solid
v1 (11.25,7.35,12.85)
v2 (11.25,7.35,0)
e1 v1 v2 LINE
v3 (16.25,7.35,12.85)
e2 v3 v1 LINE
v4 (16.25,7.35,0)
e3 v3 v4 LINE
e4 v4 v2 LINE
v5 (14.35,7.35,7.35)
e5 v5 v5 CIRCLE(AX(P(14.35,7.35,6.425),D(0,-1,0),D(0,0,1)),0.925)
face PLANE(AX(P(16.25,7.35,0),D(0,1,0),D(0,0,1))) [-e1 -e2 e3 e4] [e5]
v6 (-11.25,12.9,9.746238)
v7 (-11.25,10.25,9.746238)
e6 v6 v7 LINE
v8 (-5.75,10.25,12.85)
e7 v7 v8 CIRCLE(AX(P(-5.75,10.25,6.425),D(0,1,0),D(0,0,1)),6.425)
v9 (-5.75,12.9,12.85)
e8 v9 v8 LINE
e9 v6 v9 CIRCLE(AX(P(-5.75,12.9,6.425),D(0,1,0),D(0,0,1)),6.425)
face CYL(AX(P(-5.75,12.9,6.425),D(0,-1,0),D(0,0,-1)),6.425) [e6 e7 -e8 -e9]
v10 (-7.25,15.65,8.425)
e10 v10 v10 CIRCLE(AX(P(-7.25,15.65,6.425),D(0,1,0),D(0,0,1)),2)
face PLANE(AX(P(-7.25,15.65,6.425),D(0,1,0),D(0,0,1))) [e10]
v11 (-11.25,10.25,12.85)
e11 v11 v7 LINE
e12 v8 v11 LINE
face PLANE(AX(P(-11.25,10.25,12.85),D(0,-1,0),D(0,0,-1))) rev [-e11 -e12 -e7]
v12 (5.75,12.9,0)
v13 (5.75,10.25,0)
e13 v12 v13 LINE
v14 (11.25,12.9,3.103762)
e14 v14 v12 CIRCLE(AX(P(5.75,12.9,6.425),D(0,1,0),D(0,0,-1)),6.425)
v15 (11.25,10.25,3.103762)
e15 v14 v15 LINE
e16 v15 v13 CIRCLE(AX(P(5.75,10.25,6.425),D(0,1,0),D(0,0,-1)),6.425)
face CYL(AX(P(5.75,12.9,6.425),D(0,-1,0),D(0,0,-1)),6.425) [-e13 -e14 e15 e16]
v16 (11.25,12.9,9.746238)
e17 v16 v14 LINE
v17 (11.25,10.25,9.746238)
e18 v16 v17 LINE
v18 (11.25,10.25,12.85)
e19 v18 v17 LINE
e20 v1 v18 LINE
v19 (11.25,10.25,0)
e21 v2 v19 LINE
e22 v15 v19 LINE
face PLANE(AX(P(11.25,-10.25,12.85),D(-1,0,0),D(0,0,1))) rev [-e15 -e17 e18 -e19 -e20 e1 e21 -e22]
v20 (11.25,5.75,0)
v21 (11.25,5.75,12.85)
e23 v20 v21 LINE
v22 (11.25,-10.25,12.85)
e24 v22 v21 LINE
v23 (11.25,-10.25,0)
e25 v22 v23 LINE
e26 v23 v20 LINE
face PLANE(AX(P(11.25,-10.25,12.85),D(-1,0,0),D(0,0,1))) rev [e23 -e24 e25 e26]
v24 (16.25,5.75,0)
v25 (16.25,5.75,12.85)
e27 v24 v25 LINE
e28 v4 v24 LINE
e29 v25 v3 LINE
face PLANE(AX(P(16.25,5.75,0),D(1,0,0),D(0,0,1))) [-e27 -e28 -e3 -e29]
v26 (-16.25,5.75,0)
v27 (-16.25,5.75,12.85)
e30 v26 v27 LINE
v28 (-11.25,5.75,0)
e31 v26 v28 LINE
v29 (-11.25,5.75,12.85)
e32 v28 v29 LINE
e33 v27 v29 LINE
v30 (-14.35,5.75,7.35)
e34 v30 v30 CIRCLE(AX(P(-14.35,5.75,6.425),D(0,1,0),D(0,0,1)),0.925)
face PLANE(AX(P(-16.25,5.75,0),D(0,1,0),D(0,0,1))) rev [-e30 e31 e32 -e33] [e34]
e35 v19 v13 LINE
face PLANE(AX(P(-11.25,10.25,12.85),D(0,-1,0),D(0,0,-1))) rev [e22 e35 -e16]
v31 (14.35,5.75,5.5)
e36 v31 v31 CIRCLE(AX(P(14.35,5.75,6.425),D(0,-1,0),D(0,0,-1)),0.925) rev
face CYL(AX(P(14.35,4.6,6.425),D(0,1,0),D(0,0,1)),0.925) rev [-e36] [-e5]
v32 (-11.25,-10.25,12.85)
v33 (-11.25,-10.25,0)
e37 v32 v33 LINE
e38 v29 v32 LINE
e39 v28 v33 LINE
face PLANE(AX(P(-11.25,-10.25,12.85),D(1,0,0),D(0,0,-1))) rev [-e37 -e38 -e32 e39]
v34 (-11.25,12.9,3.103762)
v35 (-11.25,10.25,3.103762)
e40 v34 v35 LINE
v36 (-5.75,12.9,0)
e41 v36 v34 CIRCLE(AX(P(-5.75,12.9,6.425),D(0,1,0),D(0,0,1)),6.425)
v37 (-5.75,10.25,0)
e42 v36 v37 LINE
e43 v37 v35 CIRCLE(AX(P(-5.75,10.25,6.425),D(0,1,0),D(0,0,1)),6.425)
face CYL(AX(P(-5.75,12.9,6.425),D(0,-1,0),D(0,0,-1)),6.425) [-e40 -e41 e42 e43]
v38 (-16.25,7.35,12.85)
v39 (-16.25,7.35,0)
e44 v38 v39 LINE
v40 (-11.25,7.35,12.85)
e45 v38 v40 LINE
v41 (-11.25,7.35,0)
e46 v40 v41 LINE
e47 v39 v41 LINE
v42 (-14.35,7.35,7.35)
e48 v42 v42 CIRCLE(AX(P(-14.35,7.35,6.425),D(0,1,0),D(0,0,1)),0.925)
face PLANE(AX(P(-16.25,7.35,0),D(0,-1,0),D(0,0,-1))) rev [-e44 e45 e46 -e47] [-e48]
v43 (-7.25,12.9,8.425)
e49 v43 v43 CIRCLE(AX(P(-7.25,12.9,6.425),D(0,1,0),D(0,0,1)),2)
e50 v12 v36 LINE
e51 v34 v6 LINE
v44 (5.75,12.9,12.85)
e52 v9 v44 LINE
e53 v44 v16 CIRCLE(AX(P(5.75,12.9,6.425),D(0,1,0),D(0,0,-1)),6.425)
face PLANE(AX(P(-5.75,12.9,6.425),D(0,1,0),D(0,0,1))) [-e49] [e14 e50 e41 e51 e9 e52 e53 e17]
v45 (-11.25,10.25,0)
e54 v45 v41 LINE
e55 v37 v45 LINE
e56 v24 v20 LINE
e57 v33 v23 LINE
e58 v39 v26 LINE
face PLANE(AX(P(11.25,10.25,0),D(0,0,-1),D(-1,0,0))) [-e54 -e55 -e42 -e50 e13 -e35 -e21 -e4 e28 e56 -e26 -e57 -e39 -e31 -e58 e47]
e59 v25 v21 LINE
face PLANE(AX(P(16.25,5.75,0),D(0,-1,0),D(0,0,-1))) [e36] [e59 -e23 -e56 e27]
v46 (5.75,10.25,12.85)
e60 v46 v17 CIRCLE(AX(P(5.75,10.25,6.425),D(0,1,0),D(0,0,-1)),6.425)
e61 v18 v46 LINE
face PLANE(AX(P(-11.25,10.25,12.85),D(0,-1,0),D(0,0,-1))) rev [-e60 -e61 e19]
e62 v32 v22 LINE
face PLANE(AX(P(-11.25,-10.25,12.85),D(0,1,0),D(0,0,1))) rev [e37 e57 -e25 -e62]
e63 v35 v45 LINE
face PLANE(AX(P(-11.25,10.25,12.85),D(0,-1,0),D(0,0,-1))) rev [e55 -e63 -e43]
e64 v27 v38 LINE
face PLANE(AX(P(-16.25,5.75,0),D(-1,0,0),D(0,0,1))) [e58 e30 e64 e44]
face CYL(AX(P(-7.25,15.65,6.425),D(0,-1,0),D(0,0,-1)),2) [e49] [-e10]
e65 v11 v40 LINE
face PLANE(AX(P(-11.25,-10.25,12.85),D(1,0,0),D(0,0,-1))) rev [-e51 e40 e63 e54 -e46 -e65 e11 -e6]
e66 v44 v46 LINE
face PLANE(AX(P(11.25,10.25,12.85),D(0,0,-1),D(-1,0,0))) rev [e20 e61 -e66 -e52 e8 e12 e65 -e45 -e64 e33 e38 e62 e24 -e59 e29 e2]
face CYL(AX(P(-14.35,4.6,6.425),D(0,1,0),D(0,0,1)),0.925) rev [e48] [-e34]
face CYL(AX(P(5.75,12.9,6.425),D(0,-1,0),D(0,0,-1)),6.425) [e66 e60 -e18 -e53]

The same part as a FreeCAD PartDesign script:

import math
import FreeCAD as App
import Part
import Sketcher
from FreeCAD import Vector


def add_polygon(sketch, points):
    """Adds a closed chain of lines whose ends are joined by coincident constraints."""
    first, n = sketch.GeometryCount, len(points)
    for a, b in zip(points, points[1:] + points[:1]):
        sketch.addGeometry(Part.LineSegment(App.Vector(*a, 0), App.Vector(*b, 0)), False)
    for i in range(n):
        sketch.addConstraint(Sketcher.Constraint("Coincident", first + i, 2, first + (i + 1) % n, 1))

doc = App.newDocument("Part")
body = doc.addObject("PartDesign::Body", "Body")

# Sketch on XY plane
sketch1 = body.newObject("Sketcher::SketchObject", "Sketch")
sketch1.AttachmentSupport = (doc.getObject("XY_Plane"), [""])
sketch1.MapMode = "FlatFace"
add_polygon(sketch1, [(-11.25, 10.25), (-11.25, -10.25), (11.25, -10.25), (11.25, 10.25)])  # lines 0-3
sketch1.addConstraint(Sketcher.Constraint("Vertical", 0))
sketch1.addConstraint(Sketcher.Constraint("Horizontal", 1))
sketch1.addConstraint(Sketcher.Constraint("Vertical", 2))
sketch1.addConstraint(Sketcher.Constraint("Horizontal", 3))
sketch1.addConstraint(Sketcher.Constraint("Symmetric", 0, 2, 2, 2, -1, 1))
sketch1.addConstraint(Sketcher.Constraint("DistanceX", 1, 1, 1, 2, 22.5))
sketch1.addConstraint(Sketcher.Constraint("DistanceY", 0, 2, 0, 1, 20.5))
pad1 = body.newObject("PartDesign::Pad", "Pad")
pad1.Profile = sketch1
pad1.Length = 12.85

# Sketch on XZ plane
sketch2 = body.newObject("Sketcher::SketchObject", "Sketch001")
sketch2.AttachmentSupport = (doc.getObject("XZ_Plane"), [""])
sketch2.MapMode = "FlatFace"
sketch2.AttachmentOffset = App.Placement(Vector(0, 0, -10.25), App.Rotation())
sketch2.addGeometry(Part.LineSegment(Vector(5.75, 0, 0), Vector(-5.75, 0, 0)), False)
sketch2.addGeometry(Part.ArcOfCircle(Part.Circle(Vector(-5.75, 6.425, 0), Vector(0, 0, 1), 6.425), math.radians(-148.873837), math.radians(-90)), False)
sketch2.addGeometry(Part.LineSegment(Vector(-11.25, 3.103762, 0), Vector(-11.25, 9.746238, 0)), False)
sketch2.addGeometry(Part.ArcOfCircle(Part.Circle(Vector(-5.75, 6.425, 0), Vector(0, 0, 1), 6.425), math.radians(90), math.radians(148.873837)), False)
sketch2.addGeometry(Part.LineSegment(Vector(-5.75, 12.85, 0), Vector(5.75, 12.85, 0)), False)
sketch2.addGeometry(Part.ArcOfCircle(Part.Circle(Vector(5.75, 6.425, 0), Vector(0, 0, 1), 6.425), math.radians(31.126163), math.radians(90)), False)
sketch2.addGeometry(Part.LineSegment(Vector(11.25, 9.746238, 0), Vector(11.25, 3.103762, 0)), False)
sketch2.addGeometry(Part.ArcOfCircle(Part.Circle(Vector(5.75, 6.425, 0), Vector(0, 0, 1), 6.425), math.radians(-90), math.radians(-31.126163)), False)
sketch2.addConstraint(Sketcher.Constraint("Tangent", 0, 2, 1, 2))
sketch2.addConstraint(Sketcher.Constraint("Coincident", 1, 1, 2, 1))
sketch2.addConstraint(Sketcher.Constraint("Coincident", 2, 2, 3, 2))
sketch2.addConstraint(Sketcher.Constraint("Tangent", 3, 1, 4, 1))
sketch2.addConstraint(Sketcher.Constraint("Tangent", 4, 2, 5, 2))
sketch2.addConstraint(Sketcher.Constraint("Coincident", 5, 1, 6, 1))
sketch2.addConstraint(Sketcher.Constraint("Coincident", 6, 2, 7, 2))
sketch2.addConstraint(Sketcher.Constraint("Tangent", 7, 1, 0, 1))
sketch2.addConstraint(Sketcher.Constraint("Horizontal", 0))
sketch2.addConstraint(Sketcher.Constraint("Vertical", 2))
sketch2.addConstraint(Sketcher.Constraint("Horizontal", 4))
sketch2.addConstraint(Sketcher.Constraint("Vertical", 6))
sketch2.addConstraint(Sketcher.Constraint("Coincident", 3, 3, 1, 3))
sketch2.addConstraint(Sketcher.Constraint("Coincident", 7, 3, 5, 3))
sketch2.addConstraint(Sketcher.Constraint("Equal", 1, 3))
sketch2.addConstraint(Sketcher.Constraint("Equal", 3, 5))
sketch2.addConstraint(Sketcher.Constraint("Symmetric", 0, 2, 7, 1, -1, 1))
sketch2.addConstraint(Sketcher.Constraint("Horizontal", 2, 2, 5, 1))
sketch2.addConstraint(Sketcher.Constraint("DistanceX", 0, 2, 0, 1, 11.5))
sketch2.addConstraint(Sketcher.Constraint("Radius", 1, 6.425))
sketch2.addConstraint(Sketcher.Constraint("DistanceX", 1, 1, 5, 3, 17.0))
pad2 = body.newObject("PartDesign::Pad", "Pad001")
pad2.Profile = sketch2
pad2.Length = 2.65
pad2.Reversed = True

# Sketch on YZ plane
sketch3 = body.newObject("Sketcher::SketchObject", "Sketch002")
sketch3.AttachmentSupport = (doc.getObject("YZ_Plane"), [""])
sketch3.MapMode = "FlatFace"
sketch3.AttachmentOffset = App.Placement(Vector(0, 0, -11.25), App.Rotation())
add_polygon(sketch3, [(7.35, 0), (5.75, 0), (5.75, 12.85), (7.35, 12.85)])  # lines 0-3
sketch3.addConstraint(Sketcher.Constraint("Horizontal", 0))
sketch3.addConstraint(Sketcher.Constraint("Vertical", 1))
sketch3.addConstraint(Sketcher.Constraint("Horizontal", 2))
sketch3.addConstraint(Sketcher.Constraint("Vertical", 3))
sketch3.addConstraint(Sketcher.Constraint("PointOnObject", 0, 2, -1))
sketch3.addConstraint(Sketcher.Constraint("DistanceX", 0, 2, 0, 1, 1.6))
sketch3.addConstraint(Sketcher.Constraint("DistanceY", 1, 1, 1, 2, 12.85))
sketch3.addConstraint(Sketcher.Constraint("DistanceX", -1, 1, 0, 2, 5.75))
pad3 = body.newObject("PartDesign::Pad", "Pad002")
pad3.Profile = sketch3
pad3.Length = 5
pad3.Reversed = True

# Sketch on XZ plane
sketch4 = body.newObject("Sketcher::SketchObject", "Sketch003")
sketch4.AttachmentSupport = (doc.getObject("XZ_Plane"), [""])
sketch4.MapMode = "FlatFace"
sketch4.AttachmentOffset = App.Placement(Vector(0, 0, -7.35), App.Rotation())
sketch4.addGeometry(Part.Circle(Vector(-14.35, 6.425, 0), Vector(0, 0, 1), 0.925), False)
sketch4.addConstraint(Sketcher.Constraint("Diameter", 0, 1.85))
sketch4.addConstraint(Sketcher.Constraint("DistanceX", 0, 3, -1, 1, 14.35))
sketch4.addConstraint(Sketcher.Constraint("DistanceY", -1, 1, 0, 3, 6.425))
pocket1 = body.newObject("PartDesign::Pocket", "Pocket")
pocket1.Profile = sketch4
pocket1.Length = 2.75
pocket1.Reversed = True
doc.recompute()

mirrored = body.newObject("PartDesign::Mirrored", "Mirrored")
mirrored.Originals = [pad3, pocket1]
mirrored.MirrorPlane = (doc.getObject("YZ_Plane"), [""])
body.Tip = mirrored

# Sketch on XZ plane
sketch5 = body.newObject("Sketcher::SketchObject", "Sketch004")
sketch5.AttachmentSupport = (doc.getObject("XZ_Plane"), [""])
sketch5.MapMode = "FlatFace"
sketch5.AttachmentOffset = App.Placement(Vector(0, 0, -12.9), App.Rotation())
sketch5.addGeometry(Part.Circle(Vector(-7.25, 6.425, 0), Vector(0, 0, 1), 2), False)
sketch5.addConstraint(Sketcher.Constraint("Diameter", 0, 4.0))
sketch5.addConstraint(Sketcher.Constraint("DistanceX", 0, 3, -1, 1, 7.25))
sketch5.addConstraint(Sketcher.Constraint("DistanceY", -1, 1, 0, 3, 6.425))
pad4 = body.newObject("PartDesign::Pad", "Pad003")
pad4.Profile = sketch5
pad4.Length = 2.75
pad4.Reversed = True

doc.recompute()
